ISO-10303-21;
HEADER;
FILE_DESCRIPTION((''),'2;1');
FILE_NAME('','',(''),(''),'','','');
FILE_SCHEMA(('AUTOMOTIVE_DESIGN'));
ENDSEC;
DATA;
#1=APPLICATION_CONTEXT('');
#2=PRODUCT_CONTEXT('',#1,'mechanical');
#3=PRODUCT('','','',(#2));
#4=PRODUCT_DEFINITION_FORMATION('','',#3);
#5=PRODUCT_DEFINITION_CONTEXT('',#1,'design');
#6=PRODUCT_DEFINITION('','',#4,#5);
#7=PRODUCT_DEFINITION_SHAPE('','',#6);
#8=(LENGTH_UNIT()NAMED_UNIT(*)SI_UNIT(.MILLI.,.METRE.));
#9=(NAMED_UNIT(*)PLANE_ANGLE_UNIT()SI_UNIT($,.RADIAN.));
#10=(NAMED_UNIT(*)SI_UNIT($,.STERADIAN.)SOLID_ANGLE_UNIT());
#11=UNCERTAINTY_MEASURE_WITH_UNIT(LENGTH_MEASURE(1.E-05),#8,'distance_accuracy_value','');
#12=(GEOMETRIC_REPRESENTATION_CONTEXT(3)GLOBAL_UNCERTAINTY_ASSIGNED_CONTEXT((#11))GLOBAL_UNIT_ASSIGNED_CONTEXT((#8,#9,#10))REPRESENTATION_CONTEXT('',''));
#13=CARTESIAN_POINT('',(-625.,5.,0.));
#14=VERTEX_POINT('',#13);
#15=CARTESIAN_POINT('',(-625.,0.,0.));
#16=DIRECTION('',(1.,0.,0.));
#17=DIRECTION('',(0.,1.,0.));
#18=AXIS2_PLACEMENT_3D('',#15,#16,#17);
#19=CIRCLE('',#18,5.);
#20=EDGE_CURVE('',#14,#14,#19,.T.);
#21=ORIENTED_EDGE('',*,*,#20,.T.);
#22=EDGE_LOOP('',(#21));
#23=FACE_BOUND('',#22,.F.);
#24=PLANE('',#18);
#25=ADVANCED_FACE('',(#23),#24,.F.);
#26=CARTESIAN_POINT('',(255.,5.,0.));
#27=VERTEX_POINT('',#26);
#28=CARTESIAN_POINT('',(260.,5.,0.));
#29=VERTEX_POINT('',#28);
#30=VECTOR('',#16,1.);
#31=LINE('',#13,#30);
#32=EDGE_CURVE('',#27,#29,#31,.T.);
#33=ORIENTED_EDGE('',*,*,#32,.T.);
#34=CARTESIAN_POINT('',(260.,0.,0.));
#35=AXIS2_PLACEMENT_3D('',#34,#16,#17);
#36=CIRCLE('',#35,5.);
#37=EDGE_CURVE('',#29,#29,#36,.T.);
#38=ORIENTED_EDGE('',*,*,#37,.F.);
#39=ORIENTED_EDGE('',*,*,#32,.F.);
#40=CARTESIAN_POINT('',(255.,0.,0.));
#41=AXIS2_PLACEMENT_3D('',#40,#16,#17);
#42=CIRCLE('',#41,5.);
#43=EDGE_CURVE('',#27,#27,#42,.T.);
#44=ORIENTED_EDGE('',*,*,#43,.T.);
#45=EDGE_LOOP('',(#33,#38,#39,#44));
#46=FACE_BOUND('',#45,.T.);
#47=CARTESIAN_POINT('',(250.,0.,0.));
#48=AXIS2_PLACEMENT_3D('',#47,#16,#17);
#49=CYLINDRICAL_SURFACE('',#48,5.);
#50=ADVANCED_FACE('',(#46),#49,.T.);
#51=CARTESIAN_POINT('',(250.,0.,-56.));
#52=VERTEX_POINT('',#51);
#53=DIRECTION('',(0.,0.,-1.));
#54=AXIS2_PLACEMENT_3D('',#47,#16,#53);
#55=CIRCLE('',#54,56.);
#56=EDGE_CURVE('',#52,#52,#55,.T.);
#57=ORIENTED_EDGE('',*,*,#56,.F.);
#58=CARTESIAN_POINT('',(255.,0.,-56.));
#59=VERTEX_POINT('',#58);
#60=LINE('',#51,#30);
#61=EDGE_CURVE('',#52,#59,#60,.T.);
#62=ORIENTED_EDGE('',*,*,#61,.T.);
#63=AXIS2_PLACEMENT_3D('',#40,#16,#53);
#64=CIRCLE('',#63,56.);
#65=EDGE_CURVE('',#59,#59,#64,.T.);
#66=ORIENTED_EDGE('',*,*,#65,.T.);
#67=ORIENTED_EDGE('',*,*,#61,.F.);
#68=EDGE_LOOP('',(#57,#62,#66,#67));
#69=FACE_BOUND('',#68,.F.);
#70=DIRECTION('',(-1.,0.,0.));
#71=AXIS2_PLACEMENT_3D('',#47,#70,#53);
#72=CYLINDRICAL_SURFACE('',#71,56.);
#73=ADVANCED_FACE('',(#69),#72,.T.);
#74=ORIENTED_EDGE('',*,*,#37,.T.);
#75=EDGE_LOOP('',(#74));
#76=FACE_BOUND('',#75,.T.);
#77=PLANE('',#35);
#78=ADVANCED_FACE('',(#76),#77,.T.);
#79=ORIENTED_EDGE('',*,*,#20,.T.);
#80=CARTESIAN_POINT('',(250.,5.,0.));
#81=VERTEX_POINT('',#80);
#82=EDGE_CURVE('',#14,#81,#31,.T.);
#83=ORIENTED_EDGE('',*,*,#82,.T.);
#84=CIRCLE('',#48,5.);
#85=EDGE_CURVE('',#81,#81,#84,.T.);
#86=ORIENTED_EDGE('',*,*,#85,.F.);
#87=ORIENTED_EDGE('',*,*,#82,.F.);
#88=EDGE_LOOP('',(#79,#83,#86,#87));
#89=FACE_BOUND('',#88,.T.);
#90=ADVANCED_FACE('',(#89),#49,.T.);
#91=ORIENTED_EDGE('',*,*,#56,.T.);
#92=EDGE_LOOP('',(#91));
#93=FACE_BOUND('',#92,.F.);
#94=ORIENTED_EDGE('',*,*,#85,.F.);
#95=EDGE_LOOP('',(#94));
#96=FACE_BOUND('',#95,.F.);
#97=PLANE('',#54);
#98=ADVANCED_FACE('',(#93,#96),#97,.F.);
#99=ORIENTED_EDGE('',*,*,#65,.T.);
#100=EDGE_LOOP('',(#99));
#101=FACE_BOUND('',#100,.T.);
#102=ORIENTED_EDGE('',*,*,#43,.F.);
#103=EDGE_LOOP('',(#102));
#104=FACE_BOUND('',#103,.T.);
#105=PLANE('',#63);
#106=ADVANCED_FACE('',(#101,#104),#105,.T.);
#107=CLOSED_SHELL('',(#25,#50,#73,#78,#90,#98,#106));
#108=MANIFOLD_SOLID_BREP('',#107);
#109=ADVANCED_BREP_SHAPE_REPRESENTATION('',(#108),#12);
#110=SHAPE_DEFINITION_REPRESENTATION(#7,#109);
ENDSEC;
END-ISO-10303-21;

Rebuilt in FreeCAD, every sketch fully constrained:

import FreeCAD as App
import Part
import Sketcher
from FreeCAD import Vector
Q = App.Units.Quantity

doc = App.newDocument("Part")
params = doc.addObject("Spreadsheet::Sheet", "Params")
for row, (alias, value) in enumerate([
    ("sketch1_diameter", "112 mm"),
    ("pad1_length", "5 mm"),
    ("sketch2_diameter", "10 mm"),
    ("pad2_length", "10 mm"),
    ("pad2_length2", "875 mm"),
], start=1):
    params.set(f"A{row}", alias)
    params.set(f"B{row}", "=" + value)
    params.setAlias(f"B{row}", alias)

body = doc.addObject("PartDesign::Body", "Body")

sketch1 = body.newObject("Sketcher::SketchObject", "Sketch")
sketch1.AttachmentSupport = (doc.getObject("XY_Plane"), [""])
sketch1.MapMode = "FlatFace"
sketch1.addGeometry(Part.Circle(Vector(0, 0, 0), Vector(0, 0, 1), 56), False)
sketch1.addConstraint([
    Sketcher.Constraint("Coincident", 0, 3, -1, 1),
    Sketcher.Constraint("Diameter", 0, Q("112 mm")),
])
sketch1.setExpression("Constraints[1]", "Params.sketch1_diameter")
pad1 = body.newObject("PartDesign::Pad", "Pad")
pad1.Profile = sketch1
pad1.setExpression("Length", "Params.pad1_length")
body2 = doc.addObject("PartDesign::Body", "Body001")
doc.recompute()

body.Placement = App.Placement(Vector(0, 0, 0), App.Rotation(Vector(0, 1, 0), 90))
boolean = body2.newObject("PartDesign::Boolean", "Boolean")
boolean.Type = "Fuse"
boolean.addObjects([body])
body3 = doc.addObject("PartDesign::Body", "Body002")

sketch2 = body3.newObject("Sketcher::SketchObject", "Sketch001")
sketch2.AttachmentSupport = (doc.getObject("YZ_Plane002"), [""])
sketch2.MapMode = "FlatFace"
sketch2.addGeometry(Part.Circle(Vector(0, 0, 0), Vector(0, 0, 1), 5), False)
sketch2.addConstraint([
    Sketcher.Constraint("Coincident", 0, 3, -1, 1),
    Sketcher.Constraint("Diameter", 0, Q("10 mm")),
])
sketch2.setExpression("Constraints[1]", "Params.sketch2_diameter")
pad2 = body3.newObject("PartDesign::Pad", "Pad001")
pad2.Profile = sketch2
pad2.Type = "TwoLengths"
pad2.setExpression("Length", "Params.pad2_length")
pad2.setExpression("Length2", "Params.pad2_length2")
doc.recompute()

boolean2 = body3.newObject("PartDesign::Boolean", "Boolean001")
boolean2.Type = "Fuse"
boolean2.addObjects([body2])
body4 = doc.addObject("PartDesign::Body", "Body003")
doc.recompute()

body3.Placement = App.Placement(Vector(250, 0, 0), App.Rotation(Vector(0, 0, 1), 0))
boolean3 = body4.newObject("PartDesign::Boolean", "Boolean002")
boolean3.Type = "Fuse"
boolean3.addObjects([body3])

doc.recompute()
